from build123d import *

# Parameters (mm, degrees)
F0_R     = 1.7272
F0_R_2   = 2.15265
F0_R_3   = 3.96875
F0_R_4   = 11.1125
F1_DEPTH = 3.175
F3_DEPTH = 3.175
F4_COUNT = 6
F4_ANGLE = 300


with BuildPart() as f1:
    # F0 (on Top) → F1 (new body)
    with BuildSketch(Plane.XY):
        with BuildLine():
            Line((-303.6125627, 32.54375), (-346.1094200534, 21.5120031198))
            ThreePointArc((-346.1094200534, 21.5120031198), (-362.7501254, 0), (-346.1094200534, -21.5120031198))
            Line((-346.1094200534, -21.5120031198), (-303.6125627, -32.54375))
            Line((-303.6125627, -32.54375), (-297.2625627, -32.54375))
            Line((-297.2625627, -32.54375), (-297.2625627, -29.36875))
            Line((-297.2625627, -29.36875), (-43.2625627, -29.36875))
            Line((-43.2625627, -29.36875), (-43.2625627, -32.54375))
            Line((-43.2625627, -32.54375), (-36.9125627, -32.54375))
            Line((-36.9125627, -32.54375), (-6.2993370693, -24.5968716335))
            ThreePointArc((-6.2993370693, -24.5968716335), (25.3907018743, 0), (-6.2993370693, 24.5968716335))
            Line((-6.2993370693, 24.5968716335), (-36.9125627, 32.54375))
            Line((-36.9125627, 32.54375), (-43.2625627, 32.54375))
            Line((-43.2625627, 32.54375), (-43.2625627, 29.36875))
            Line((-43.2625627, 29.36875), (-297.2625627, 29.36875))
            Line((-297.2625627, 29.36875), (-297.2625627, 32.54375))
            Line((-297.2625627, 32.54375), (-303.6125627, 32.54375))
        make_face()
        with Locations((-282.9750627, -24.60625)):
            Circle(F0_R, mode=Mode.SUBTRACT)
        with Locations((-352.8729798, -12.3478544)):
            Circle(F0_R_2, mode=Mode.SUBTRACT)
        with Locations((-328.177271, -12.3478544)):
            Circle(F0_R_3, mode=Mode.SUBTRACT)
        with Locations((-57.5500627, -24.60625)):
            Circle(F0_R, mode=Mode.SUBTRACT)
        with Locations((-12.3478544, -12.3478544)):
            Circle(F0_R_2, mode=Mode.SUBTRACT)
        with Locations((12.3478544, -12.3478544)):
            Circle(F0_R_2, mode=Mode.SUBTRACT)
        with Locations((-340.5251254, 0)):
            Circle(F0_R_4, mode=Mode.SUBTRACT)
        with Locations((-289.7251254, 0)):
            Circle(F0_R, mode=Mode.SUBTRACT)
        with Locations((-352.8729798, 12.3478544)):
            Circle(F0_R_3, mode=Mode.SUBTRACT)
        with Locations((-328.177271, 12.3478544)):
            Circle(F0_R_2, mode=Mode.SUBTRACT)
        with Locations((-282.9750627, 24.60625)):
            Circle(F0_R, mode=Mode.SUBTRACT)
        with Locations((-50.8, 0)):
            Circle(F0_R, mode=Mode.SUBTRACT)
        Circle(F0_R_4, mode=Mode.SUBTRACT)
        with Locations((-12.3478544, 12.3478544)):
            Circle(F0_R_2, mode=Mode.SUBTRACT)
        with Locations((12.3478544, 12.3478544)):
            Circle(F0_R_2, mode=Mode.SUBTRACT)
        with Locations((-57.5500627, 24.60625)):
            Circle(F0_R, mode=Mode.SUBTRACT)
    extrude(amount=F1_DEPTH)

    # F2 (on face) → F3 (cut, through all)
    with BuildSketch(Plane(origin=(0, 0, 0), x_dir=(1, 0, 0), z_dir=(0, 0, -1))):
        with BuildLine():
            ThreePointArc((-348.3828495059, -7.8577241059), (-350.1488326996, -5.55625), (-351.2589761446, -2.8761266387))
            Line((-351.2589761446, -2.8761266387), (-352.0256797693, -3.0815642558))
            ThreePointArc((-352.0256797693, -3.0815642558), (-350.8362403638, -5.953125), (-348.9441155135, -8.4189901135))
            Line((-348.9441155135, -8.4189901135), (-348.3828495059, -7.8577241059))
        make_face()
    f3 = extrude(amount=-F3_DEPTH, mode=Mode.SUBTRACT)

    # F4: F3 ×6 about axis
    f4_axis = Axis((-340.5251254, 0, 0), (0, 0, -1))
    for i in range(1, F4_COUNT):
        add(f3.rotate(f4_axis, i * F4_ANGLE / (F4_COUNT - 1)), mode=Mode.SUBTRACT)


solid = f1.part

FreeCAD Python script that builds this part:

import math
import FreeCAD as App
import Part
import Sketcher
from FreeCAD import Vector
Q = App.Units.Quantity

doc = App.newDocument("Part")
params = doc.addObject("Spreadsheet::Sheet", "Params")
for row, (alias, value) in enumerate([
    ("sketch1_width", "10 in"),
    ("sketch1_diameter", "0.136 in"),
    ("sketch1_diameter2", "0.3125 in"),
    ("sketch1_diameter3", "0.875 in"),
    ("sketch1_radius", "0.875 in"),
    ("pad1_length", "0.125 in"),
    ("sketch2_radius", "0.4375 in"),
    ("sketch2_radius2", "0.46875 in"),
], start=1):
    params.set(f"A{row}", alias)
    params.set(f"B{row}", "=" + value)
    params.setAlias(f"B{row}", alias)

body = doc.addObject("PartDesign::Body", "Body")

sketch1 = body.newObject("Sketcher::SketchObject", "Sketch")
sketch1.AttachmentSupport = (doc.getObject("XY_Plane"), [""])
sketch1.MapMode = "FlatFace"
sketch1.addGeometry([
    Part.LineSegment(Vector(-303.6, 32.5, 0), Vector(-346.1, 21.5, 0)),
    Part.ArcOfCircle(Part.Circle(Vector(-340.5, 0, 0), Vector(0, 0, 1), 22.2), math.radians(105), math.radians(255)),
    Part.LineSegment(Vector(-346.1, -21.5, 0), Vector(-303.6, -32.5, 0)),
    Part.LineSegment(Vector(-303.6, -32.5, 0), Vector(-297.3, -32.5, 0)),
    Part.LineSegment(Vector(-297.3, -32.5, 0), Vector(-297.3, -29.4, 0)),
    Part.LineSegment(Vector(-297.3, -29.4, 0), Vector(-43.3, -29.4, 0)),
    Part.LineSegment(Vector(-43.3, -29.4, 0), Vector(-43.3, -32.5, 0)),
    Part.LineSegment(Vector(-43.3, -32.5, 0), Vector(-36.9, -32.5, 0)),
    Part.LineSegment(Vector(-36.9, -32.5, 0), Vector(-6.3, -24.6, 0)),
    Part.ArcOfCircle(Part.Circle(Vector(0, 0, 0), Vector(0, 0, 1), 25.4), math.radians(-104), math.radians(104)),
    Part.LineSegment(Vector(-6.3, 24.6, 0), Vector(-36.9, 32.5, 0)),
    Part.LineSegment(Vector(-36.9, 32.5, 0), Vector(-43.3, 32.5, 0)),
    Part.LineSegment(Vector(-43.3, 32.5, 0), Vector(-43.3, 29.4, 0)),
    Part.LineSegment(Vector(-43.3, 29.4, 0), Vector(-297.3, 29.4, 0)),
    Part.LineSegment(Vector(-297.3, 29.4, 0), Vector(-297.3, 32.5, 0)),
    Part.LineSegment(Vector(-297.3, 32.5, 0), Vector(-303.6, 32.5, 0)),
    Part.Circle(Vector(-283, -24.6, 0), Vector(0, 0, 1), 1.7),
    Part.Circle(Vector(-352.9, -12.3, 0), Vector(0, 0, 1), 2.2),
    Part.Circle(Vector(-328.2, -12.3, 0), Vector(0, 0, 1), 4),
    Part.Circle(Vector(-340.5, 0, 0), Vector(0, 0, 1), 11.1),
    Part.Circle(Vector(-289.7, 0, 0), Vector(0, 0, 1), 1.7),
    Part.Circle(Vector(-57.6, -24.6, 0), Vector(0, 0, 1), 1.7),
    Part.Circle(Vector(-12.3, -12.3, 0), Vector(0, 0, 1), 2.2),
    Part.Circle(Vector(12.3, -12.3, 0), Vector(0, 0, 1), 2.2),
    Part.Circle(Vector(-50.8, 0, 0), Vector(0, 0, 1), 1.7),
    Part.Circle(Vector(0, 0, 0), Vector(0, 0, 1), 11.1),
    Part.Circle(Vector(-352.9, 12.3, 0), Vector(0, 0, 1), 4),
    Part.Circle(Vector(-328.2, 12.3, 0), Vector(0, 0, 1), 2.2),
    Part.Circle(Vector(-283, 24.6, 0), Vector(0, 0, 1), 1.7),
    Part.Circle(Vector(-12.3, 12.3, 0), Vector(0, 0, 1), 2.2),
    Part.Circle(Vector(12.3, 12.3, 0), Vector(0, 0, 1), 2.2),
    Part.Circle(Vector(-57.6, 24.6, 0), Vector(0, 0, 1), 1.7),
], False)
sketch1.addConstraint([
    Sketcher.Constraint("Tangent", 0, 2, 1, 1),
    Sketcher.Constraint("Tangent", 1, 2, 2, 1),
    Sketcher.Constraint("Coincident", 2, 2, 3, 1),
    Sketcher.Constraint("Coincident", 3, 2, 4, 1),
    Sketcher.Constraint("Coincident", 4, 2, 5, 1),
    Sketcher.Constraint("Coincident", 5, 2, 6, 1),
    Sketcher.Constraint("Coincident", 6, 2, 7, 1),
    Sketcher.Constraint("Coincident", 7, 2, 8, 1),
    Sketcher.Constraint("Coincident", 8, 2, 9, 1),
    Sketcher.Constraint("Coincident", 9, 2, 10, 1),
    Sketcher.Constraint("Coincident", 10, 2, 11, 1),
    Sketcher.Constraint("Coincident", 11, 2, 12, 1),
    Sketcher.Constraint("Coincident", 12, 2, 13, 1),
    Sketcher.Constraint("Coincident", 13, 2, 14, 1),
    Sketcher.Constraint("Coincident", 14, 2, 15, 1),
    Sketcher.Constraint("Coincident", 15, 2, 0, 1),
    Sketcher.Constraint("Horizontal", 3),
    Sketcher.Constraint("Vertical", 4),
    Sketcher.Constraint("Horizontal", 5),
    Sketcher.Constraint("Vertical", 6),
    Sketcher.Constraint("Horizontal", 7),
    Sketcher.Constraint("Horizontal", 11),
    Sketcher.Constraint("Vertical", 12),
    Sketcher.Constraint("Horizontal", 13),
    Sketcher.Constraint("Vertical", 14),
    Sketcher.Constraint("Horizontal", 15),
    Sketcher.Constraint("Coincident", 9, 3, -1, 1),
    Sketcher.Constraint("Coincident", 25, 3, -1, 1),
    Sketcher.Constraint("Coincident", 19, 3, 1, 3),
    Sketcher.Constraint("Equal", 16, 20),
    Sketcher.Constraint("Equal", 20, 21),
    Sketcher.Constraint("Equal", 17, 22),
    Sketcher.Constraint("Equal", 22, 23),
    Sketcher.Constraint("Equal", 21, 24),
    Sketcher.Constraint("Equal", 19, 25),
    Sketcher.Constraint("Equal", 18, 26),
    Sketcher.Constraint("Equal", 23, 27),
    Sketcher.Constraint("Equal", 24, 28),
    Sketcher.Constraint("Equal", 27, 29),
    Sketcher.Constraint("Equal", 29, 30),
    Sketcher.Constraint("Equal", 28, 31),
    Sketcher.Constraint("Symmetric", 23, 3, 29, 3, -1, 1),
    Sketcher.Constraint("Symmetric", 22, 3, 30, 3, -1, 1),
    Sketcher.Constraint("Symmetric", 22, 3, 23, 3, -2),
    Sketcher.Constraint("Symmetric", 17, 3, 26, 3, -1),
    Sketcher.Constraint("Symmetric", 18, 3, 27, 3, -1),
    Sketcher.Constraint("Symmetric", 16, 3, 28, 3, -1),
    Sketcher.Constraint("Symmetric", 21, 3, 31, 3, -1),
    Sketcher.Constraint("Symmetric", 0, 2, 1, 2, -1),
    Sketcher.Constraint("Symmetric", 7, 2, 10, 2, -1),
    Sketcher.Constraint("Symmetric", 5, 2, 12, 2, -1),
    Sketcher.Constraint("Symmetric", 3, 2, 14, 2, -1),
    Sketcher.Constraint("PointOnObject", 20, 3, -1),
    Sketcher.Constraint("PointOnObject", 24, 3, -1),
    Sketcher.Constraint("Parallel", 0, 8),
    Sketcher.Constraint("Parallel", 2, 10),
    Sketcher.Constraint("Horizontal", 17, 3, 18, 3),
    Sketcher.Constraint("Horizontal", 16, 3, 21, 3),
    Sketcher.Constraint("Horizontal", 18, 3, 22, 3),
    Sketcher.Constraint("Horizontal", 3, 2, 6, 2),
    Sketcher.Constraint("Equal", 3, 7),
    Sketcher.Constraint("DistanceX", 5, 1, 5, 2, Q("10 in")),
    Sketcher.Constraint("Diameter", 16, Q("0.136 in")),
    Sketcher.Constraint("Diameter", 18, Q("0.3125 in")),
    Sketcher.Constraint("Diameter", 19, Q("0.875 in")),
    Sketcher.Constraint("DistanceX", 24, 3, -1, 1, Q("2 in")),
    Sketcher.Constraint("Radius", 1, Q("0.875 in")),
    Sketcher.Constraint("DistanceX", 1, 3, 20, 3, Q("2 in")),
    Sketcher.Constraint("Diameter", 17, Q("0.1695 in")),
    Sketcher.Constraint("DistanceX", 3, 1, 3, 2, Q("0.25 in")),
    Sketcher.Constraint("DistanceY", 4, 1, 4, 2, Q("0.125 in")),
    Sketcher.Constraint("Radius", 9, Q("25.390702 mm")),
    Sketcher.Constraint("DistanceY", 16, 3, -1, 1, Q("0.96875 in")),
    Sketcher.Constraint("DistanceY", 2, 2, -1, 1, Q("1.28125 in")),
    Sketcher.Constraint("DistanceX", 16, 3, 21, 3, Q("8.875 in")),
    Sketcher.Constraint("DistanceX", 2, 2, 16, 3, Q("0.8125 in")),
    Sketcher.Constraint("Distance", 0, Q("43.905379 mm")),
    Sketcher.Constraint("DistanceX", 17, 3, -1, 1, Q("352.87298 mm")),
    Sketcher.Constraint("DistanceX", 18, 3, -1, 1, Q("328.177271 mm")),
    Sketcher.Constraint("DistanceX", 0, 2, -1, 1, Q("346.10942 mm")),
    Sketcher.Constraint("DistanceX", 21, 3, 22, 3, Q("45.202208 mm")),
    Sketcher.Constraint("DistanceY", 17, 3, 26, 3, Q("24.695709 mm")),
])
sketch1.setExpression("Constraints[61]", "Params.sketch1_width")
sketch1.setExpression("Constraints[62]", "Params.sketch1_diameter")
sketch1.setExpression("Constraints[63]", "Params.sketch1_diameter2")
sketch1.setExpression("Constraints[64]", "Params.sketch1_diameter3")
sketch1.setExpression("Constraints[66]", "Params.sketch1_radius")
pad1 = body.newObject("PartDesign::Pad", "Pad")
pad1.Profile = sketch1
pad1.setExpression("Length", "Params.pad1_length")

sketch2 = body.newObject("Sketcher::SketchObject", "Sketch001")
sketch2.AttachmentSupport = (doc.getObject("XY_Plane"), [""])
sketch2.MapMode = "FlatFace"
sketch2.addGeometry([
    Part.ArcOfCircle(Part.Circle(Vector(-340.5, 0, 0), Vector(0, 0, 1), 11.1), math.radians(135), math.radians(165)),
    Part.LineSegment(Vector(-351.3, 2.9, 0), Vector(-352, 3.1, 0)),
    Part.ArcOfCircle(Part.Circle(Vector(-340.5, 0, 0), Vector(0, 0, 1), 11.9), math.radians(135), math.radians(165)),
    Part.LineSegment(Vector(-348.9, 8.4, 0), Vector(-348.4, 7.9, 0)),
], False)
sketch2.addConstraint([
    Sketcher.Constraint("Coincident", 0, 2, 1, 1),
    Sketcher.Constraint("Coincident", 1, 2, 2, 2),
    Sketcher.Constraint("Coincident", 2, 1, 3, 1),
    Sketcher.Constraint("Coincident", 3, 2, 0, 1),
    Sketcher.Constraint("Coincident", 2, 3, 0, 3),
    Sketcher.Constraint("PointOnObject", 0, 3, -1),
    Sketcher.Constraint("Angle", 1, Q("165 deg")),
    Sketcher.Constraint("Angle", 3, Q("-45 deg")),
    Sketcher.Constraint("Radius", 0, Q("0.4375 in")),
    Sketcher.Constraint("Radius", 2, Q("0.46875 in")),
    Sketcher.Constraint("DistanceX", 1, 2, -1, 1, Q("352.02568 mm")),
    Sketcher.Constraint("DistanceY", -1, 1, 2, 1, Q("8.41899 mm")),
    Sketcher.Constraint("DistanceX", 3, 2, -1, 1, Q("348.38285 mm")),
])
sketch2.setExpression("Constraints[8]", "Params.sketch2_radius")
sketch2.setExpression("Constraints[9]", "Params.sketch2_radius2")
pocket1 = body.newObject("PartDesign::Pocket", "Pocket")
pocket1.Profile = sketch2
pocket1.Type = "ThroughAll"
pocket1.Reversed = True
doc.recompute()

datumline = body.newObject("PartDesign::Line", "DatumLine")
datumline.Placement = App.Placement(Vector(-340.525125, 0, 0), App.Rotation(Vector(0, 0, 1), Vector(0, 0, -1)))
polarpattern = body.newObject("PartDesign::PolarPattern", "PolarPattern")
polarpattern.Originals = [pocket1]
polarpattern.Axis = (datumline, [""])
polarpattern.Angle = 360
polarpattern.Occurrences = 6
body.Tip = polarpattern

doc.recompute()
